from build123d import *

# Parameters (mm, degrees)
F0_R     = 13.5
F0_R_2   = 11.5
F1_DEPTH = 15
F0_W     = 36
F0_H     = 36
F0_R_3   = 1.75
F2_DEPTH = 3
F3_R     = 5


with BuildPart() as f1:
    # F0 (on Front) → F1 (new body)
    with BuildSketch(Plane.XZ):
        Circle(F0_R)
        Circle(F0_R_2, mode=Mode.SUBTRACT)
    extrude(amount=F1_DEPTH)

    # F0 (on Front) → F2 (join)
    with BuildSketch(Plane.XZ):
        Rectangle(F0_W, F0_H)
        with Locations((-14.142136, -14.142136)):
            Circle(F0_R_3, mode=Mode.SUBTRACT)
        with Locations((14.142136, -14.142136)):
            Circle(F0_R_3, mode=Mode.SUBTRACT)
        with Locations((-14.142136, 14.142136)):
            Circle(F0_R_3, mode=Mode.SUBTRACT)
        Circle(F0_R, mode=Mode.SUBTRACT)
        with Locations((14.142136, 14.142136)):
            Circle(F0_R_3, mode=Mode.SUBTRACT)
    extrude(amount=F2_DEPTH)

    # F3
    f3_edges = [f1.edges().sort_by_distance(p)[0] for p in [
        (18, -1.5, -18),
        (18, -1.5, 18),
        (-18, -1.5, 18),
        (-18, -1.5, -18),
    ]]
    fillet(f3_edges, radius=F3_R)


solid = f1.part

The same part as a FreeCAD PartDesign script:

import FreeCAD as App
import Part
import Sketcher
Q = App.Units.Quantity


def edges_at(feature, points):
    """Names of the edges that pass closest to the given points."""
    edges = feature.Shape.Edges
    near = lambda p: min(range(len(edges)), key=lambda i: edges[i].distToShape(Part.Vertex(*p))[0])
    return sorted({f"Edge{near(p) + 1}" for p in points})

doc = App.newDocument("Part")
body = doc.addObject("PartDesign::Body", "Body")

sketch1 = doc.addObject("Sketcher::SketchObject", "Sketch")
body.addObject(sketch1)
sketch1.AttachmentSupport = (doc.XZ_Plane, [""])
sketch1.MapMode = "FlatFace"
sketch1.addGeometry([
    Part.Circle(App.Vector(0, 0, 0), App.Vector(0, 0, 1), 14),
    Part.Circle(App.Vector(0, 0, 0), App.Vector(0, 0, 1), 12),
], False)
sketch1.addConstraint([
    Sketcher.Constraint("Coincident", 0, 3, -1, 1),
    Sketcher.Constraint("Coincident", 1, 3, -1, 1),
    Sketcher.Constraint("Diameter", 0, Q("27 mm")),
    Sketcher.Constraint("Diameter", 1, Q("23 mm")),
])
pad1 = doc.addObject("PartDesign::Pad", "Pad")
body.addObject(pad1)
pad1.Profile = sketch1
pad1.Length = 15

sketch2 = doc.addObject("Sketcher::SketchObject", "Sketch001")
body.addObject(sketch2)
sketch2.AttachmentSupport = (doc.XZ_Plane, [""])
sketch2.MapMode = "FlatFace"
sketch2.addGeometry([
    Part.LineSegment(App.Vector(-18, 18, 0), App.Vector(-18, -18, 0)),
    Part.LineSegment(App.Vector(-18, -18, 0), App.Vector(18, -18, 0)),
    Part.LineSegment(App.Vector(18, -18, 0), App.Vector(18, 18, 0)),
    Part.LineSegment(App.Vector(18, 18, 0), App.Vector(-18, 18, 0)),
    Part.Circle(App.Vector(-14.1, -14.1, 0), App.Vector(0, 0, 1), 1.8),
    Part.Circle(App.Vector(14.1, -14.1, 0), App.Vector(0, 0, 1), 1.8),
    Part.Circle(App.Vector(-14.1, 14.1, 0), App.Vector(0, 0, 1), 1.8),
    Part.Circle(App.Vector(0, 0, 0), App.Vector(0, 0, 1), 13.5),
    Part.Circle(App.Vector(14.1, 14.1, 0), App.Vector(0, 0, 1), 1.8),
], False)
sketch2.addConstraint([
    Sketcher.Constraint("Coincident", 0, 2, 1, 1),
    Sketcher.Constraint("Coincident", 1, 2, 2, 1),
    Sketcher.Constraint("Coincident", 2, 2, 3, 1),
    Sketcher.Constraint("Coincident", 3, 2, 0, 1),
    Sketcher.Constraint("Vertical", 0),
    Sketcher.Constraint("Horizontal", 1),
    Sketcher.Constraint("Vertical", 2),
    Sketcher.Constraint("Horizontal", 3),
    Sketcher.Constraint("Coincident", 7, 3, -1, 1),
    Sketcher.Constraint("Equal", 4, 5),
    Sketcher.Constraint("Equal", 5, 6),
    Sketcher.Constraint("Equal", 6, 8),
    Sketcher.Constraint("Symmetric", 5, 3, 6, 3, -1, 1),
    Sketcher.Constraint("Symmetric", 4, 3, 8, 3, -1, 1),
    Sketcher.Constraint("Symmetric", 0, 2, 2, 2, -1, 1),
    Sketcher.Constraint("Symmetric", 4, 3, 5, 3, -2),
    Sketcher.Constraint("Equal", 3, 0),
    Sketcher.Constraint("Diameter", 7, Q("27 mm")),
    Sketcher.Constraint("Diameter", 4, Q("3.5 mm")),
    Sketcher.Constraint("DistanceX", 1, 1, 1, 2, Q("36 mm")),
    Sketcher.Constraint("DistanceX", 4, 3, -1, 1, Q("14.142136 mm")),
    Sketcher.Constraint("DistanceY", 4, 3, -1, 1, Q("14.142136 mm")),
])
pad2 = doc.addObject("PartDesign::Pad", "Pad001")
body.addObject(pad2)
pad2.Profile = sketch2
pad2.Length = 3
doc.recompute()

fillet = doc.addObject("PartDesign::Fillet", "Fillet")
body.addObject(fillet)
fillet.Base = (pad2, edges_at(pad2, [
    (18, -1.5, -18),
    (18, -1.5, 18),
    (-18, -1.5, 18),
    (-18, -1.5, -18),
]))
fillet.Radius = 5

doc.recompute()
